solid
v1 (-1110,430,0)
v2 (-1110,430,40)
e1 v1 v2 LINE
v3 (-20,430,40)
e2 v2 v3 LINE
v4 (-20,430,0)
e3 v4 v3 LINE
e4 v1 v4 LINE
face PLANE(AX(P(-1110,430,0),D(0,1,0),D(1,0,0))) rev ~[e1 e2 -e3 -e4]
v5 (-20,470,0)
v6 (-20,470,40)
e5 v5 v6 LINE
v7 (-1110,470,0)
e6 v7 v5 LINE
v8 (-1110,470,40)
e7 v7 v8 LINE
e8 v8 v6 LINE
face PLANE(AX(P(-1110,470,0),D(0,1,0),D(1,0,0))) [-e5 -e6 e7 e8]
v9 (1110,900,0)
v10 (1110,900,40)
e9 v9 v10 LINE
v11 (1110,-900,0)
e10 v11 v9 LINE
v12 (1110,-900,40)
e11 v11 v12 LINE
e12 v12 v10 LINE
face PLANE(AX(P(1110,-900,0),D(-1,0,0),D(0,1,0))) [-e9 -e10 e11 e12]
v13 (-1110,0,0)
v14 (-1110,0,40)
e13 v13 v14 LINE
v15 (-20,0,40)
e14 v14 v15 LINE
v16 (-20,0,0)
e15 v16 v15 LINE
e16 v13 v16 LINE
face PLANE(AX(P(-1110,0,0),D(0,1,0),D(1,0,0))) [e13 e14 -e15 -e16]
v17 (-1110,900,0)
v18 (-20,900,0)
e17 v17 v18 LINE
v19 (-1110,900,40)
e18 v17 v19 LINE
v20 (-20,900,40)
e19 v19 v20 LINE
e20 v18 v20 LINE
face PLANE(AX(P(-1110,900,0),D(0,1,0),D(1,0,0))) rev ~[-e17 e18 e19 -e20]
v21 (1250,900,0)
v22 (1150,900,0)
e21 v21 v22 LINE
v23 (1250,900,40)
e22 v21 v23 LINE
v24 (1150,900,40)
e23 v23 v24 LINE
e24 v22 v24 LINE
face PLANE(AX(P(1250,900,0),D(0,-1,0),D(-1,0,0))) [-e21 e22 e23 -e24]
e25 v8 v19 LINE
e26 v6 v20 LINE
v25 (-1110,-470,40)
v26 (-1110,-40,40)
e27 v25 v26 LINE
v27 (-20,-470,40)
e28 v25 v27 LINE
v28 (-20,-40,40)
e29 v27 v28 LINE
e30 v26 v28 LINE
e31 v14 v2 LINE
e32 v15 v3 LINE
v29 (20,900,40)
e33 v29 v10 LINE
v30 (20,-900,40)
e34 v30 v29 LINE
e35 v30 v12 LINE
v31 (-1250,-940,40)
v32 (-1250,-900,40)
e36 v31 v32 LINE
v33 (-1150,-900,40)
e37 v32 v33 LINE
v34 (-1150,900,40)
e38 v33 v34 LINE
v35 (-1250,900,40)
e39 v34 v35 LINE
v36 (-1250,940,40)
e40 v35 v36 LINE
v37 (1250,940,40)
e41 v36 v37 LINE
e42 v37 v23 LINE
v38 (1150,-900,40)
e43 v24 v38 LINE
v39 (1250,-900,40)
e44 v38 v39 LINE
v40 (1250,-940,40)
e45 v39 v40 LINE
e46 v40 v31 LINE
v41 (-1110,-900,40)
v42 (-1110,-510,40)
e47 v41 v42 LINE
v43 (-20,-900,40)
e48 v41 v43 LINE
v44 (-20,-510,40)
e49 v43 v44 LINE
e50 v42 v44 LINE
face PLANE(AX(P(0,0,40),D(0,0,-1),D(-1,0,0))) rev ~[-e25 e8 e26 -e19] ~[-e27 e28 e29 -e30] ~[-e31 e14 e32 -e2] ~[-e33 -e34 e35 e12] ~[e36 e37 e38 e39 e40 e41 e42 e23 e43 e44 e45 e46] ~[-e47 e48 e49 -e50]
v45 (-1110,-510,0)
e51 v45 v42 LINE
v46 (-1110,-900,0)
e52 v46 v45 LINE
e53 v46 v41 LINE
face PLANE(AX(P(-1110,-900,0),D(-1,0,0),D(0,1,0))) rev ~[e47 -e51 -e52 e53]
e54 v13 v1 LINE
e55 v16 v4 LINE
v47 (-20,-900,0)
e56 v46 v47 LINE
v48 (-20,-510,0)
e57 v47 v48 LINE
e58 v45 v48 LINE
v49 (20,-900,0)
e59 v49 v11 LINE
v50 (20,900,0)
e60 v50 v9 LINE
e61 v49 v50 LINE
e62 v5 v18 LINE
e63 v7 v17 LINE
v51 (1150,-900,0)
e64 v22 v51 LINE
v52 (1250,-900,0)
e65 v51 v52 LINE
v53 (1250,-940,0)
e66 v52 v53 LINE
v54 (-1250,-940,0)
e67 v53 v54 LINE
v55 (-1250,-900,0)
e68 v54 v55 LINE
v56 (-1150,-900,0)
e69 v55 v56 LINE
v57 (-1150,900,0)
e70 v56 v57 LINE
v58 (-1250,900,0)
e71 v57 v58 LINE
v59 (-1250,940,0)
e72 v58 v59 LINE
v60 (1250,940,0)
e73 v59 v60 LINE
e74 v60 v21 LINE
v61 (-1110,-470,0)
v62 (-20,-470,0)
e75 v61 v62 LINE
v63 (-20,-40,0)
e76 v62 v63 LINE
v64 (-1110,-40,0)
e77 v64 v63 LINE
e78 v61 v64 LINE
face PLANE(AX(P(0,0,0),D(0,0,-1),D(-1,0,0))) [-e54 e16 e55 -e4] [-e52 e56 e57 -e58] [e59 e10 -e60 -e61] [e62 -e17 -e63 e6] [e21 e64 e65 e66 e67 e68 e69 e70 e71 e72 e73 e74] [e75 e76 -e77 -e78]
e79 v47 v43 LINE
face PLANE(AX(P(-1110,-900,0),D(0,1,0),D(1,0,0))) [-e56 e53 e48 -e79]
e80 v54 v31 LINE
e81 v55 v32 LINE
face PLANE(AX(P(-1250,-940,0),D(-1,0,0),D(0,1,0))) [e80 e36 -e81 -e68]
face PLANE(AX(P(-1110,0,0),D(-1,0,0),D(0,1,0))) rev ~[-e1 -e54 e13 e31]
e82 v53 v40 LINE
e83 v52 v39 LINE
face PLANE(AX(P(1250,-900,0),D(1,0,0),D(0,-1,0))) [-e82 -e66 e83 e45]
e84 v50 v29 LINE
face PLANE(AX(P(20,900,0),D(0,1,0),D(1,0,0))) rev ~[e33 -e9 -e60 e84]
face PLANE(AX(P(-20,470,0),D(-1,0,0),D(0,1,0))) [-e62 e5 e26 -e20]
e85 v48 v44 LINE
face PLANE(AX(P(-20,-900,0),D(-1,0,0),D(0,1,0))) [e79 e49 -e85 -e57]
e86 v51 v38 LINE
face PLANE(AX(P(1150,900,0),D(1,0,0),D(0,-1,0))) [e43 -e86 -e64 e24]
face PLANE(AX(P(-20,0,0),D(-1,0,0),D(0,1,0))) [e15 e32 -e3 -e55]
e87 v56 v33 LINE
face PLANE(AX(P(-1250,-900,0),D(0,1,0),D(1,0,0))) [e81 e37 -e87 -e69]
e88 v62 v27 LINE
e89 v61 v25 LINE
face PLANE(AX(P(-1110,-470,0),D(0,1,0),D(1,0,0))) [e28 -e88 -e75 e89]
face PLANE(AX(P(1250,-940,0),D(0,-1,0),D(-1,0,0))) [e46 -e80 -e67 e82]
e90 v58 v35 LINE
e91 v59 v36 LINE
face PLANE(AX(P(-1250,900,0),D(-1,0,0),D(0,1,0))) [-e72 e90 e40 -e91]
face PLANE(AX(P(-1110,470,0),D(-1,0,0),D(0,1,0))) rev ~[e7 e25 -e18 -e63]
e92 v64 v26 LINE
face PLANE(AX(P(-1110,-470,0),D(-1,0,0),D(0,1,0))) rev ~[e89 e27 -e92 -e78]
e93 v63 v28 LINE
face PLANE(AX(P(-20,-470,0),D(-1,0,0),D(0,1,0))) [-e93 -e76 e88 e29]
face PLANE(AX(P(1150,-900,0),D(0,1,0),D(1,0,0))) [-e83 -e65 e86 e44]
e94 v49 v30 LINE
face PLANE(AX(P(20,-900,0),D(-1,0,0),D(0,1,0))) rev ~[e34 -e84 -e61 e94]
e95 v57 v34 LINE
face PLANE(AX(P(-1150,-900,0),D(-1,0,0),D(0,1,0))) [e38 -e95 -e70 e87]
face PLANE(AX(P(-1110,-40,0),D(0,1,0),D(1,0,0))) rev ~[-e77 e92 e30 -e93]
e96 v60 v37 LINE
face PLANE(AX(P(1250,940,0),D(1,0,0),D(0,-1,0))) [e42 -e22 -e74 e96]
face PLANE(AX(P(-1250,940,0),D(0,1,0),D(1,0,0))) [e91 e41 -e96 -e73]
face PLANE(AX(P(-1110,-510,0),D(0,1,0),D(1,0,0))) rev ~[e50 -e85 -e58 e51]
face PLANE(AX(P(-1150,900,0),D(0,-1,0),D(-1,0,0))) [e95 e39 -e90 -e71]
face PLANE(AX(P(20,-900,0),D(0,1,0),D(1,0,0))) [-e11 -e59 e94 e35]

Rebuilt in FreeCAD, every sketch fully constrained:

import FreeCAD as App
import Part
import Sketcher
Q = App.Units.Quantity


def add_polygon(sketch, points):
    """Adds a closed chain of lines whose ends are joined by coincident constraints."""
    first, n = sketch.GeometryCount, len(points)
    for a, b in zip(points, points[1:] + points[:1]):
        sketch.addGeometry(Part.LineSegment(App.Vector(*a, 0), App.Vector(*b, 0)), False)
    for i in range(n):
        sketch.addConstraint(Sketcher.Constraint("Coincident", first + i, 2, first + (i + 1) % n, 1))

doc = App.newDocument("Part")
params = doc.addObject("Spreadsheet::Sheet", "Params")
for row, (alias, value) in enumerate([
    ("sketch1_width", "2500 mm"),
    ("sketch1_width2", "100 mm"),
    ("sketch1_width3", "1090 mm"),
    ("sketch1_height", "40 mm"),
    ("sketch1_height2", "1800 mm"),
    ("pad1_length", "40 mm"),
], start=1):
    params.set(f"A{row}", alias)
    params.set(f"B{row}", "=" + value)
    params.setAlias(f"B{row}", alias)

body = doc.addObject("PartDesign::Body", "Body")

# Sketch on XY plane
sketch1 = doc.addObject("Sketcher::SketchObject", "Sketch")
body.addObject(sketch1)
sketch1.AttachmentSupport = (doc.XY_Plane, [""])
sketch1.MapMode = "FlatFace"
add_polygon(sketch1, [(1250, 940), (-1250, 940), (-1250, 900), (-1150, 900), (-1150, -900), (-1250, -900), (-1250, -940), (1250, -940), (1250, -900), (1150, -900), (1150, 900), (1250, 900)])  # lines 0-11
add_polygon(sketch1, [(-1110, -900), (-1110, -510), (-20, -510), (-20, -900)])  # lines 12-15
add_polygon(sketch1, [(-1110, -470), (-1110, -40), (-20, -40), (-20, -470)])  # lines 16-19
add_polygon(sketch1, [(20, -900), (20, 900), (1110, 900), (1110, -900)])  # lines 20-23
add_polygon(sketch1, [(-1110, 0), (-1110, 430), (-20, 430), (-20, 0)])  # lines 24-27
add_polygon(sketch1, [(-1110, 470), (-1110, 900), (-20, 900), (-20, 470)])  # lines 28-31
sketch1.addConstraint([
    Sketcher.Constraint("Horizontal", 0),
    Sketcher.Constraint("Vertical", 1),
    Sketcher.Constraint("Horizontal", 2),
    Sketcher.Constraint("Vertical", 3),
    Sketcher.Constraint("Horizontal", 4),
    Sketcher.Constraint("Vertical", 5),
    Sketcher.Constraint("Horizontal", 6),
    Sketcher.Constraint("Vertical", 7),
    Sketcher.Constraint("Horizontal", 8),
    Sketcher.Constraint("Vertical", 9),
    Sketcher.Constraint("Horizontal", 10),
    Sketcher.Constraint("Vertical", 11),
    Sketcher.Constraint("Vertical", 12),
    Sketcher.Constraint("Horizontal", 13),
    Sketcher.Constraint("Vertical", 14),
    Sketcher.Constraint("Horizontal", 15),
    Sketcher.Constraint("Vertical", 16),
    Sketcher.Constraint("Horizontal", 17),
    Sketcher.Constraint("Vertical", 18),
    Sketcher.Constraint("Horizontal", 19),
    Sketcher.Constraint("Vertical", 20),
    Sketcher.Constraint("Horizontal", 21),
    Sketcher.Constraint("Vertical", 22),
    Sketcher.Constraint("Horizontal", 23),
    Sketcher.Constraint("Vertical", 24),
    Sketcher.Constraint("Horizontal", 25),
    Sketcher.Constraint("Vertical", 26),
    Sketcher.Constraint("Horizontal", 27),
    Sketcher.Constraint("Vertical", 28),
    Sketcher.Constraint("Horizontal", 29),
    Sketcher.Constraint("Vertical", 30),
    Sketcher.Constraint("Horizontal", 31),
    Sketcher.Constraint("Symmetric", 0, 2, 6, 2, -1, 1),
    Sketcher.Constraint("Symmetric", 2, 2, 8, 2, -1, 1),
    Sketcher.Constraint("Symmetric", 4, 2, 10, 2, -1, 1),
    Sketcher.Constraint("Symmetric", 14, 2, 20, 2, -1, 1),
    Sketcher.Constraint("Symmetric", 22, 2, 28, 2, -1, 1),
    Sketcher.Constraint("Symmetric", 4, 2, 7, 2, -2),
    Sketcher.Constraint("Symmetric", 15, 2, 22, 2, -2),
    Sketcher.Constraint("Symmetric", 18, 2, 30, 2, -1),
    Sketcher.Constraint("PointOnObject", 26, 2, -1),
    Sketcher.Constraint("Horizontal", 8, 2, 14, 2),
    Sketcher.Constraint("Vertical", 15, 2, 16, 2),
    Sketcher.Constraint("Vertical", 14, 2, 17, 2),
    Sketcher.Constraint("Vertical", 19, 2, 24, 2),
    Sketcher.Constraint("Vertical", 18, 2, 25, 2),
    Sketcher.Constraint("Equal", 18, 24),
    Sketcher.Constraint("Equal", 26, 28),
    Sketcher.Constraint("DistanceX", 0, 2, 0, 1, Q("2500 mm")),
    Sketcher.Constraint("DistanceX", 2, 1, 2, 2, Q("100 mm")),
    Sketcher.Constraint("DistanceX", 13, 1, 13, 2, Q("1090 mm")),
    Sketcher.Constraint("DistanceY", 1, 2, 1, 1, Q("40 mm")),
    Sketcher.Constraint("DistanceY", 3, 2, 3, 1, Q("1800 mm")),
    Sketcher.Constraint("DistanceY", 12, 1, 12, 2, Q("390 mm")),
    Sketcher.Constraint("DistanceY", 16, 1, 16, 2, Q("430 mm")),
    Sketcher.Constraint("DistanceX", 12, 2, -1, 1, Q("1110 mm")),
])
sketch1.setExpression("Constraints[80]", "Params.sketch1_width")
sketch1.setExpression("Constraints[81]", "Params.sketch1_width2")
sketch1.setExpression("Constraints[82]", "Params.sketch1_width3")
sketch1.setExpression("Constraints[83]", "Params.sketch1_height")
sketch1.setExpression("Constraints[84]", "Params.sketch1_height2")
pad1 = doc.addObject("PartDesign::Pad", "Pad")
body.addObject(pad1)
pad1.Profile = sketch1
pad1.setExpression("Length", "Params.pad1_length")

doc.recompute()
